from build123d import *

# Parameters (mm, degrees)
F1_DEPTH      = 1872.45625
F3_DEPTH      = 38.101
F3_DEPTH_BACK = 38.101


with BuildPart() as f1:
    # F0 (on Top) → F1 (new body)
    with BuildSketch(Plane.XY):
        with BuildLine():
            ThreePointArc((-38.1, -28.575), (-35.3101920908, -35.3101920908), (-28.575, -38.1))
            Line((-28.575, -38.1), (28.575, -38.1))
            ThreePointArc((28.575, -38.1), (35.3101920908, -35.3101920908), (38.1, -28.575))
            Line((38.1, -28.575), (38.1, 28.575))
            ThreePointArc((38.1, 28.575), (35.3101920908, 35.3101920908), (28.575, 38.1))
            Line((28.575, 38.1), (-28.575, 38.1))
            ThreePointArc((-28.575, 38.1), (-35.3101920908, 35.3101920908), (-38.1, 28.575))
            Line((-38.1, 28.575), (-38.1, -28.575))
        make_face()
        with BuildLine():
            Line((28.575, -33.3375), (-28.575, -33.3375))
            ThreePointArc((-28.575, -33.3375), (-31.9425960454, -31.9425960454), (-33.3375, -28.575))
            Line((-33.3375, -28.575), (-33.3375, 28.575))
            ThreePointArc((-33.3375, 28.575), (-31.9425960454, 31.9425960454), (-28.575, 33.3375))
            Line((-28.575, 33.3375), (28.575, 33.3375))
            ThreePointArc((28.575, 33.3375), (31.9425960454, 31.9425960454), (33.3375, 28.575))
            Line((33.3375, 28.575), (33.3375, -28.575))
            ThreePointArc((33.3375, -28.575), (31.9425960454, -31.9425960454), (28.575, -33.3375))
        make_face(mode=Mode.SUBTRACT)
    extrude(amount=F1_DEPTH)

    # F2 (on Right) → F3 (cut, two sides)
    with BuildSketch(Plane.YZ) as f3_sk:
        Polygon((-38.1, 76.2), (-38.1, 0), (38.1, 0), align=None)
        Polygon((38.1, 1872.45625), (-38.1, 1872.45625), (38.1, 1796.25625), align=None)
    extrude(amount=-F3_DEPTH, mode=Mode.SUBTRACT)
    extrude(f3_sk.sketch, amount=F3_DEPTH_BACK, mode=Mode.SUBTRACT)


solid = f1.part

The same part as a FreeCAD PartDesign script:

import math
import FreeCAD as App
import Part
import Sketcher
from FreeCAD import Vector
Q = App.Units.Quantity


def add_polygon(sketch, points):
    """Adds a closed chain of lines whose ends are joined by coincident constraints."""
    first, n = sketch.GeometryCount, len(points)
    for a, b in zip(points, points[1:] + points[:1]):
        sketch.addGeometry(Part.LineSegment(App.Vector(*a, 0), App.Vector(*b, 0)), False)
    for i in range(n):
        sketch.addConstraint(Sketcher.Constraint("Coincident", first + i, 2, first + (i + 1) % n, 1))

doc = App.newDocument("Part")
body = doc.addObject("PartDesign::Body", "Body")

sketch1 = body.newObject("Sketcher::SketchObject", "Sketch")
sketch1.AttachmentSupport = (doc.getObject("XY_Plane"), [""])
sketch1.MapMode = "FlatFace"
sketch1.addGeometry(Part.ArcOfCircle(Part.Circle(Vector(-28.6, -28.6, 0), Vector(0, 0, 1), 9.5), math.radians(180), math.radians(270)), False)
sketch1.addGeometry(Part.LineSegment(Vector(-28.6, -38.1, 0), Vector(28.6, -38.1, 0)), False)
sketch1.addGeometry(Part.ArcOfCircle(Part.Circle(Vector(28.6, -28.6, 0), Vector(0, 0, 1), 9.5), math.radians(-90), math.radians(0)), False)
sketch1.addGeometry(Part.LineSegment(Vector(38.1, -28.6, 0), Vector(38.1, 28.6, 0)), False)
sketch1.addGeometry(Part.ArcOfCircle(Part.Circle(Vector(28.6, 28.6, 0), Vector(0, 0, 1), 9.5), math.radians(0), math.radians(90)), False)
sketch1.addGeometry(Part.LineSegment(Vector(28.6, 38.1, 0), Vector(-28.6, 38.1, 0)), False)
sketch1.addGeometry(Part.ArcOfCircle(Part.Circle(Vector(-28.6, 28.6, 0), Vector(0, 0, 1), 9.5), math.radians(90), math.radians(180)), False)
sketch1.addGeometry(Part.LineSegment(Vector(-38.1, 28.6, 0), Vector(-38.1, -28.6, 0)), False)
sketch1.addGeometry(Part.ArcOfCircle(Part.Circle(Vector(28.6, -28.6, 0), Vector(0, 0, 1), 4.8), math.radians(-90), math.radians(0)), False)
sketch1.addGeometry(Part.LineSegment(Vector(28.6, -33.3, 0), Vector(-28.6, -33.3, 0)), False)
sketch1.addGeometry(Part.ArcOfCircle(Part.Circle(Vector(-28.6, -28.6, 0), Vector(0, 0, 1), 4.8), math.radians(180), math.radians(270)), False)
sketch1.addGeometry(Part.LineSegment(Vector(-33.3, -28.6, 0), Vector(-33.3, 28.6, 0)), False)
sketch1.addGeometry(Part.ArcOfCircle(Part.Circle(Vector(-28.6, 28.6, 0), Vector(0, 0, 1), 4.8), math.radians(90), math.radians(180)), False)
sketch1.addGeometry(Part.LineSegment(Vector(-28.6, 33.3, 0), Vector(28.6, 33.3, 0)), False)
sketch1.addGeometry(Part.ArcOfCircle(Part.Circle(Vector(28.6, 28.6, 0), Vector(0, 0, 1), 4.8), math.radians(0), math.radians(90)), False)
sketch1.addGeometry(Part.LineSegment(Vector(33.3, 28.6, 0), Vector(33.3, -28.6, 0)), False)
sketch1.addConstraint(Sketcher.Constraint("Tangent", 0, 2, 1, 1))
sketch1.addConstraint(Sketcher.Constraint("Tangent", 1, 2, 2, 1))
sketch1.addConstraint(Sketcher.Constraint("Tangent", 2, 2, 3, 1))
sketch1.addConstraint(Sketcher.Constraint("Tangent", 3, 2, 4, 1))
sketch1.addConstraint(Sketcher.Constraint("Tangent", 4, 2, 5, 1))
sketch1.addConstraint(Sketcher.Constraint("Tangent", 5, 2, 6, 1))
sketch1.addConstraint(Sketcher.Constraint("Tangent", 6, 2, 7, 1))
sketch1.addConstraint(Sketcher.Constraint("Tangent", 7, 2, 0, 1))
sketch1.addConstraint(Sketcher.Constraint("Tangent", 8, 1, 9, 1))
sketch1.addConstraint(Sketcher.Constraint("Tangent", 9, 2, 10, 2))
sketch1.addConstraint(Sketcher.Constraint("Tangent", 10, 1, 11, 1))
sketch1.addConstraint(Sketcher.Constraint("Tangent", 11, 2, 12, 2))
sketch1.addConstraint(Sketcher.Constraint("Tangent", 12, 1, 13, 1))
sketch1.addConstraint(Sketcher.Constraint("Tangent", 13, 2, 14, 2))
sketch1.addConstraint(Sketcher.Constraint("Tangent", 14, 1, 15, 1))
sketch1.addConstraint(Sketcher.Constraint("Tangent", 15, 2, 8, 2))
sketch1.addConstraint(Sketcher.Constraint("Horizontal", 1))
sketch1.addConstraint(Sketcher.Constraint("Vertical", 3))
sketch1.addConstraint(Sketcher.Constraint("Horizontal", 5))
sketch1.addConstraint(Sketcher.Constraint("Vertical", 7))
sketch1.addConstraint(Sketcher.Constraint("Horizontal", 9))
sketch1.addConstraint(Sketcher.Constraint("Vertical", 11))
sketch1.addConstraint(Sketcher.Constraint("Horizontal", 13))
sketch1.addConstraint(Sketcher.Constraint("Vertical", 15))
sketch1.addConstraint(Sketcher.Constraint("Coincident", 8, 3, 2, 3))
sketch1.addConstraint(Sketcher.Constraint("Coincident", 10, 3, 0, 3))
sketch1.addConstraint(Sketcher.Constraint("Coincident", 12, 3, 6, 3))
sketch1.addConstraint(Sketcher.Constraint("Equal", 0, 2))
sketch1.addConstraint(Sketcher.Constraint("Equal", 2, 4))
sketch1.addConstraint(Sketcher.Constraint("Equal", 4, 6))
sketch1.addConstraint(Sketcher.Constraint("Equal", 12, 14))
sketch1.addConstraint(Sketcher.Constraint("Symmetric", 0, 3, 4, 3, -1, 1))
sketch1.addConstraint(Sketcher.Constraint("Equal", 13, 3))
sketch1.addConstraint(Sketcher.Constraint("Radius", 0, Q("0.375 in")))
sketch1.addConstraint(Sketcher.Constraint("Radius", 8, Q("0.1875 in")))
sketch1.addConstraint(Sketcher.Constraint("DistanceX", 1, 1, 1, 2, Q("2.25 in")))
pad1 = body.newObject("PartDesign::Pad", "Pad")
pad1.Profile = sketch1
pad1.Length = Q("73.71875 in")

sketch2 = body.newObject("Sketcher::SketchObject", "Sketch001")
sketch2.AttachmentSupport = (doc.getObject("YZ_Plane"), [""])
sketch2.MapMode = "FlatFace"
add_polygon(sketch2, [(-38, 76), (-38, 0), (38, 0)])
add_polygon(sketch2, [(38, 1872), (-38, 1872), (38, 1796)])
sketch2.addConstraint(Sketcher.Constraint("Vertical", 0))
sketch2.addConstraint(Sketcher.Constraint("Horizontal", 1))
sketch2.addConstraint(Sketcher.Constraint("Horizontal", 3))
sketch2.addConstraint(Sketcher.Constraint("Vertical", 5))
sketch2.addConstraint(Sketcher.Constraint("Symmetric", 0, 2, 1, 2, -1, 1))
sketch2.addConstraint(Sketcher.Constraint("Parallel", 2, 4))
sketch2.addConstraint(Sketcher.Constraint("Vertical", 2, 2, 3, 2))
sketch2.addConstraint(Sketcher.Constraint("Vertical", 1, 2, 4, 2))
sketch2.addConstraint(Sketcher.Constraint("Equal", 3, 0))
sketch2.addConstraint(Sketcher.Constraint("DistanceX", 1, 1, 1, 2, Q("3 in")))
sketch2.addConstraint(Sketcher.Constraint("DistanceY", -1, 1, 3, 2, Q("73.71875 in")))
pocket1 = body.newObject("PartDesign::Pocket", "Pocket")
pocket1.Profile = sketch2
pocket1.Type = "ThroughAll"
pocket1.Midplane = True

doc.recompute()
